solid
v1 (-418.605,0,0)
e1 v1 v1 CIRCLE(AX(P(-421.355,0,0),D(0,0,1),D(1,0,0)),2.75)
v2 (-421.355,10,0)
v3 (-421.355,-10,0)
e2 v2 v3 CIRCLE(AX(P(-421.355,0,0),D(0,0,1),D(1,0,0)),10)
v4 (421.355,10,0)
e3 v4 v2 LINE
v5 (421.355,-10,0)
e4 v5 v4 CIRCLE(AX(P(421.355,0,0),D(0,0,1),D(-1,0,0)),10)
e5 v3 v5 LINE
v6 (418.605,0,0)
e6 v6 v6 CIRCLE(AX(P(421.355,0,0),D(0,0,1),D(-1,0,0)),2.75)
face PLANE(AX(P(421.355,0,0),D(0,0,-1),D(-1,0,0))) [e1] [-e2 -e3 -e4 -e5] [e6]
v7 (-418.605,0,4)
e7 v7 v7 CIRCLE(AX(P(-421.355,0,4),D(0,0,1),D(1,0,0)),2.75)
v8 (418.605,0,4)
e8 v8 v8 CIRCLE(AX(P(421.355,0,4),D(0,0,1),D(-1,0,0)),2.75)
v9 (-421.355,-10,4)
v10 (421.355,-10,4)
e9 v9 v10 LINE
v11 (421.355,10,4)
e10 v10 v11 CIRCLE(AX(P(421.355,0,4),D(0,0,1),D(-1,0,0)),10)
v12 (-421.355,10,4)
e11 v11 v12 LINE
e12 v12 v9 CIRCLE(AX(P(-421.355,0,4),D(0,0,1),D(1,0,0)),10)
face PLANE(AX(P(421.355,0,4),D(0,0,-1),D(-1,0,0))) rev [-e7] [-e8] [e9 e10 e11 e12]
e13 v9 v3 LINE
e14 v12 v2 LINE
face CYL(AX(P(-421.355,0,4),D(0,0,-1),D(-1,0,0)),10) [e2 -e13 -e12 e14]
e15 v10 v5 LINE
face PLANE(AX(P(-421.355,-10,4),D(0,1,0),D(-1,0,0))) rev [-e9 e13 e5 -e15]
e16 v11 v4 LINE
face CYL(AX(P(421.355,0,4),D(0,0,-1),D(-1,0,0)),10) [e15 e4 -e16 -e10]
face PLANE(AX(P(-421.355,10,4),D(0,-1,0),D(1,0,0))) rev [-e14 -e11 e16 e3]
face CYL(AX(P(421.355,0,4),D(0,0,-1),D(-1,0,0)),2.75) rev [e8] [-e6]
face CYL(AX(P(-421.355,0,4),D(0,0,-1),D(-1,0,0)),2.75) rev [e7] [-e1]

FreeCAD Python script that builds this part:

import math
import FreeCAD as App
import Part
import Sketcher
from FreeCAD import Vector
Q = App.Units.Quantity

doc = App.newDocument("Part")
params = doc.addObject("Spreadsheet::Sheet", "Params")
for row, (alias, value) in enumerate([
    ("sketch1_radius", "10 mm"),
    ("sketch1_diameter", "5.5 mm"),
    ("sketch1_width", "842.71 mm"),
    ("pad1_length", "4 mm"),
], start=1):
    params.set(f"A{row}", alias)
    params.set(f"B{row}", "=" + value)
    params.setAlias(f"B{row}", alias)

body = doc.addObject("PartDesign::Body", "Body")

sketch1 = body.newObject("Sketcher::SketchObject", "Sketch")
sketch1.AttachmentSupport = (doc.getObject("XY_Plane"), [""])
sketch1.MapMode = "FlatFace"
sketch1.addGeometry([
    Part.LineSegment(Vector(-421.355, -10, 0), Vector(421.355, -10, 0)),
    Part.ArcOfCircle(Part.Circle(Vector(421.355, 0, 0), Vector(0, 0, 1), 10), math.radians(-90), math.radians(90)),
    Part.LineSegment(Vector(421.355, 10, 0), Vector(-421.355, 10, 0)),
    Part.ArcOfCircle(Part.Circle(Vector(-421.355, 0, 0), Vector(0, 0, 1), 10), math.radians(90), math.radians(270)),
    Part.Circle(Vector(-421.355, 0, 0), Vector(0, 0, 1), 2.75),
    Part.Circle(Vector(421.355, 0, 0), Vector(0, 0, 1), 2.75),
], False)
sketch1.addConstraint([
    Sketcher.Constraint("Tangent", 0, 2, 1, 1),
    Sketcher.Constraint("Tangent", 1, 2, 2, 1),
    Sketcher.Constraint("Tangent", 2, 2, 3, 1),
    Sketcher.Constraint("Tangent", 3, 2, 0, 1),
    Sketcher.Constraint("Horizontal", 0),
    Sketcher.Constraint("Horizontal", 2),
    Sketcher.Constraint("Coincident", 4, 3, 3, 3),
    Sketcher.Constraint("Coincident", 5, 3, 1, 3),
    Sketcher.Constraint("Equal", 4, 5),
    Sketcher.Constraint("Symmetric", 1, 3, 3, 3, -1, 1),
    Sketcher.Constraint("Radius", 1, Q("10 mm")),
    Sketcher.Constraint("Diameter", 4, Q("5.5 mm")),
    Sketcher.Constraint("DistanceX", 0, 1, 0, 2, Q("842.71 mm")),
])
sketch1.setExpression("Constraints[10]", "Params.sketch1_radius")
sketch1.setExpression("Constraints[11]", "Params.sketch1_diameter")
sketch1.setExpression("Constraints[12]", "Params.sketch1_width")
pad1 = body.newObject("PartDesign::Pad", "Pad")
pad1.Profile = sketch1
pad1.setExpression("Length", "Params.pad1_length")

doc.recompute()
